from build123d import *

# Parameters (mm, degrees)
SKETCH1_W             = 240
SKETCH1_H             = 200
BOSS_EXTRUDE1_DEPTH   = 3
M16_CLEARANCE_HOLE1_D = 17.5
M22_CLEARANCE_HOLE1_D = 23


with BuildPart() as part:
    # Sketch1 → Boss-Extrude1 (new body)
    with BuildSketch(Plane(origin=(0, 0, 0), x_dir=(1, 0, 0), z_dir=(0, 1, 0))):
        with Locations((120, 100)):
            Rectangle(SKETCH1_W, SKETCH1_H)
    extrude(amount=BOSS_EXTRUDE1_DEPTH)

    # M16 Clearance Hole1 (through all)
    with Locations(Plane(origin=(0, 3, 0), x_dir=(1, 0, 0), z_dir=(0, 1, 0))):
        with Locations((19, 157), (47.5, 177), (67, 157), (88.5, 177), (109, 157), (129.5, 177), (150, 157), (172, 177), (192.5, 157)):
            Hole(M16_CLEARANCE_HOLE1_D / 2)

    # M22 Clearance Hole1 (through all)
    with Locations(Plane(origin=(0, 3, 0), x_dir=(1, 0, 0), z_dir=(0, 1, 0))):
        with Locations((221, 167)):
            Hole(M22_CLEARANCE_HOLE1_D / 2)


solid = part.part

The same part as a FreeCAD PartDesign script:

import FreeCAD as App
import Part
import Sketcher
from FreeCAD import Vector


def add_polygon(sketch, points):
    """Adds a closed chain of lines whose ends are joined by coincident constraints."""
    first, n = sketch.GeometryCount, len(points)
    for a, b in zip(points, points[1:] + points[:1]):
        sketch.addGeometry(Part.LineSegment(App.Vector(*a, 0), App.Vector(*b, 0)), False)
    for i in range(n):
        sketch.addConstraint(Sketcher.Constraint("Coincident", first + i, 2, first + (i + 1) % n, 1))

doc = App.newDocument("Part")
body = doc.addObject("PartDesign::Body", "Body")

sketch1 = body.newObject("Sketcher::SketchObject", "Sketch")
sketch1.AttachmentSupport = (doc.getObject("XZ_Plane"), [""])
sketch1.MapMode = "FlatFace"
add_polygon(sketch1, [(0, -200), (0, 0), (240, 0), (240, -200)])
sketch1.addConstraint([
    Sketcher.Constraint("Vertical", 0),
    Sketcher.Constraint("Horizontal", 1),
    Sketcher.Constraint("Vertical", 2),
    Sketcher.Constraint("Horizontal", 3),
    Sketcher.Constraint("Coincident", 0, 2, -1, 1),
    Sketcher.Constraint("DistanceX", 1, 1, 1, 2, 240.0),
    Sketcher.Constraint("DistanceY", 0, 1, 0, 2, 200.0),
])
pad1 = body.newObject("PartDesign::Pad", "Pad")
pad1.Profile = sketch1
pad1.Length = 3
pad1.Reversed = True

sketch2 = body.newObject("Sketcher::SketchObject", "Sketch001")
sketch2.AttachmentSupport = (doc.getObject("XZ_Plane"), [""])
sketch2.MapMode = "FlatFace"
sketch2.AttachmentOffset = App.Placement(Vector(0, 0, -3), App.Rotation())
sketch2.addGeometry([
    Part.Circle(Vector(19, -157, 0), Vector(0, 0, 1), 8.75),
    Part.Circle(Vector(47.5, -177, 0), Vector(0, 0, 1), 8.75),
    Part.Circle(Vector(67, -157, 0), Vector(0, 0, 1), 8.75),
    Part.Circle(Vector(88.5, -177, 0), Vector(0, 0, 1), 8.75),
    Part.Circle(Vector(109, -157, 0), Vector(0, 0, 1), 8.75),
    Part.Circle(Vector(129.5, -177, 0), Vector(0, 0, 1), 8.75),
    Part.Circle(Vector(150, -157, 0), Vector(0, 0, 1), 8.75),
    Part.Circle(Vector(172, -177, 0), Vector(0, 0, 1), 8.75),
    Part.Circle(Vector(192.5, -157, 0), Vector(0, 0, 1), 8.75),
], False)
sketch2.addConstraint([
    Sketcher.Constraint("Equal", 0, 1),
    Sketcher.Constraint("Equal", 1, 2),
    Sketcher.Constraint("Equal", 2, 3),
    Sketcher.Constraint("Equal", 3, 4),
    Sketcher.Constraint("Equal", 4, 5),
    Sketcher.Constraint("Equal", 5, 6),
    Sketcher.Constraint("Equal", 6, 7),
    Sketcher.Constraint("Equal", 7, 8),
    Sketcher.Constraint("Horizontal", 0, 3, 2, 3),
    Sketcher.Constraint("Horizontal", 1, 3, 3, 3),
    Sketcher.Constraint("Horizontal", 2, 3, 4, 3),
    Sketcher.Constraint("Horizontal", 3, 3, 5, 3),
    Sketcher.Constraint("Horizontal", 4, 3, 6, 3),
    Sketcher.Constraint("Horizontal", 5, 3, 7, 3),
    Sketcher.Constraint("Horizontal", 6, 3, 8, 3),
    Sketcher.Constraint("Diameter", 0, 17.5),
    Sketcher.Constraint("DistanceX", -1, 1, 0, 3, 19.0),
    Sketcher.Constraint("DistanceY", 0, 3, -1, 1, 157.0),
    Sketcher.Constraint("DistanceY", 1, 3, -1, 1, 177.0),
    Sketcher.Constraint("DistanceX", -1, 1, 2, 3, 67.0),
    Sketcher.Constraint("DistanceX", -1, 1, 4, 3, 109.0),
    Sketcher.Constraint("DistanceX", -1, 1, 6, 3, 150.0),
    Sketcher.Constraint("DistanceX", -1, 1, 7, 3, 172.0),
    Sketcher.Constraint("DistanceX", 1, 3, 3, 3, 41.0),
    Sketcher.Constraint("DistanceX", 3, 3, 5, 3, 41.0),
    Sketcher.Constraint("DistanceX", 5, 3, 8, 3, 63.0),
    Sketcher.Constraint("DistanceX", -1, 1, 1, 3, 47.5),
])
doc.recompute()
hole = body.newObject("PartDesign::Hole", "Hole")
hole.Profile = sketch2
hole.ThreadType = "None"
hole.Diameter = 17.5
hole.DepthType = "ThroughAll"
hole.Reversed = True

sketch3 = body.newObject("Sketcher::SketchObject", "Sketch002")
sketch3.AttachmentSupport = (doc.getObject("XZ_Plane"), [""])
sketch3.MapMode = "FlatFace"
sketch3.AttachmentOffset = App.Placement(Vector(0, 0, -3), App.Rotation())
sketch3.addGeometry(Part.Circle(Vector(221, -167, 0), Vector(0, 0, 1), 11.5), False)
sketch3.addConstraint([
    Sketcher.Constraint("Diameter", 0, 23.0),
    Sketcher.Constraint("DistanceX", -1, 1, 0, 3, 221.0),
    Sketcher.Constraint("DistanceY", 0, 3, -1, 1, 167.0),
])
doc.recompute()
hole2 = body.newObject("PartDesign::Hole", "Hole001")
hole2.Profile = sketch3
hole2.ThreadType = "None"
hole2.Diameter = 23
hole2.DepthType = "ThroughAll"
hole2.Reversed = True

doc.recompute()
